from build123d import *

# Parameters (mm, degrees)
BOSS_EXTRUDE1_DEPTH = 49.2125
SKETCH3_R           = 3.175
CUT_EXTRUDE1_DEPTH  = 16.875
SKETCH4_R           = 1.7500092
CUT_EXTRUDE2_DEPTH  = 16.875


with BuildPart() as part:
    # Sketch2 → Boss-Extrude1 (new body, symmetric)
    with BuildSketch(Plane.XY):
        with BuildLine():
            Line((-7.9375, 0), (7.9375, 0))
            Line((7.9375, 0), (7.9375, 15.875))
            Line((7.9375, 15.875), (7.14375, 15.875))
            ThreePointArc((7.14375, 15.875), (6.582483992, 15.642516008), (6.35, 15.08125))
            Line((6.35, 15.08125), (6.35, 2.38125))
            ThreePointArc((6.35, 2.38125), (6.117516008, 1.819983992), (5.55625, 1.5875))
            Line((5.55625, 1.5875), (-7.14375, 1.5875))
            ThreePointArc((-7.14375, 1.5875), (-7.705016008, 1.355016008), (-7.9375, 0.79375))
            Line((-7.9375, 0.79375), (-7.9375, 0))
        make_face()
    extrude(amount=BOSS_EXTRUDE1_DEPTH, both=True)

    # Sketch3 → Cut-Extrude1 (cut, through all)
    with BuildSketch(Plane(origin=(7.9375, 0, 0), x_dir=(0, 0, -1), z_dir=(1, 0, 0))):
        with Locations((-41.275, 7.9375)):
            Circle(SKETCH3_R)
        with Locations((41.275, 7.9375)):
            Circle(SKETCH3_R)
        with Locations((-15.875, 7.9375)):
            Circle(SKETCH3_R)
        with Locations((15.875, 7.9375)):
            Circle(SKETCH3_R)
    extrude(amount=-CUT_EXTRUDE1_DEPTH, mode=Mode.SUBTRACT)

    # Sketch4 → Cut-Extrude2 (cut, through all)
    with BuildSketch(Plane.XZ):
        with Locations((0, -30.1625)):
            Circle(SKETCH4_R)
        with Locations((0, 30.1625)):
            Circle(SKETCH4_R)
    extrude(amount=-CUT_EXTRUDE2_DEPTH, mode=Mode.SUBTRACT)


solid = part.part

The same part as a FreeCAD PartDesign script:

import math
import FreeCAD as App
import Part
import Sketcher

V = App.Vector
Q = App.Units.Quantity

doc = App.newDocument("Part")
body = doc.addObject("PartDesign::Body", "Body")

sketch1 = doc.addObject("Sketcher::SketchObject", "Sketch")
body.addObject(sketch1)
sketch1.AttachmentSupport = (doc.XY_Plane, [""])
sketch1.MapMode = "FlatFace"
sketch1.addGeometry([
    Part.LineSegment(V(-7.9, 0, 0), V(7.9, 0, 0)),
    Part.LineSegment(V(7.9, 0, 0), V(7.9, 15.9, 0)),
    Part.LineSegment(V(7.9, 15.9, 0), V(7.1, 15.9, 0)),
    Part.ArcOfCircle(Part.Circle(V(7.1, 15.1, 0), V(0, 0, 1), 0.8), math.radians(90), math.radians(180)),
    Part.LineSegment(V(6.3, 15.1, 0), V(6.3, 2.4, 0)),
    Part.ArcOfCircle(Part.Circle(V(5.6, 2.4, 0), V(0, 0, 1), 0.8), math.radians(-90), math.radians(0)),
    Part.LineSegment(V(5.6, 1.6, 0), V(-7.1, 1.6, 0)),
    Part.ArcOfCircle(Part.Circle(V(-7.1, 0.8, 0), V(0, 0, 1), 0.8), math.radians(90), math.radians(180)),
    Part.LineSegment(V(-7.9, 0.8, 0), V(-7.9, 0, 0)),
], False)
sketch1.addConstraint([
    Sketcher.Constraint("Coincident", 0, 2, 1, 1),
    Sketcher.Constraint("Coincident", 1, 2, 2, 1),
    Sketcher.Constraint("Tangent", 2, 2, 3, 1),
    Sketcher.Constraint("Tangent", 3, 2, 4, 1),
    Sketcher.Constraint("Tangent", 4, 2, 5, 2),
    Sketcher.Constraint("Tangent", 5, 1, 6, 1),
    Sketcher.Constraint("Tangent", 6, 2, 7, 1),
    Sketcher.Constraint("Tangent", 7, 2, 8, 1),
    Sketcher.Constraint("Coincident", 8, 2, 0, 1),
    Sketcher.Constraint("Horizontal", 0),
    Sketcher.Constraint("Vertical", 1),
    Sketcher.Constraint("Horizontal", 2),
    Sketcher.Constraint("Vertical", 4),
    Sketcher.Constraint("Horizontal", 6),
    Sketcher.Constraint("Vertical", 8),
    Sketcher.Constraint("Equal", 3, 5),
    Sketcher.Constraint("Equal", 5, 7),
    Sketcher.Constraint("Symmetric", 0, 2, 8, 2, -1, 1),
    Sketcher.Constraint("Equal", 0, 1),
    Sketcher.Constraint("Equal", 6, 4),
    Sketcher.Constraint("DistanceX", 6, 2, 6, 1, Q("0.5 in")),
    Sketcher.Constraint("Radius", 3, Q("0.03125 in")),
    Sketcher.Constraint("DistanceX", 0, 1, 0, 2, Q("0.625 in")),
])
pad1 = doc.addObject("PartDesign::Pad", "Pad")
body.addObject(pad1)
pad1.Profile = sketch1
pad1.Length = Q("3.875 in")
pad1.Midplane = True

sketch2 = doc.addObject("Sketcher::SketchObject", "Sketch001")
body.addObject(sketch2)
sketch2.AttachmentSupport = (doc.YZ_Plane, [""])
sketch2.MapMode = "FlatFace"
sketch2.AttachmentOffset = App.Placement(V(0, 0, 0.3125 * 25.4), App.Rotation())
sketch2.addGeometry([
    Part.Circle(V(7.9, 41.3, 0), V(0, 0, 1), 3.2),
    Part.Circle(V(7.9, -41.3, 0), V(0, 0, 1), 3.2),
    Part.Circle(V(7.9, 15.9, 0), V(0, 0, 1), 3.2),
    Part.Circle(V(7.9, -15.9, 0), V(0, 0, 1), 3.2),
], False)
sketch2.addConstraint([
    Sketcher.Constraint("Equal", 0, 1),
    Sketcher.Constraint("Equal", 1, 2),
    Sketcher.Constraint("Equal", 2, 3),
    Sketcher.Constraint("Symmetric", 0, 3, 1, 3, -1),
    Sketcher.Constraint("Symmetric", 2, 3, 3, 3, -1),
    Sketcher.Constraint("Vertical", 1, 3, 2, 3),
    Sketcher.Constraint("Diameter", 0, Q("0.25 in")),
    Sketcher.Constraint("DistanceY", 2, 3, 0, 3, Q("1 in")),
    Sketcher.Constraint("DistanceY", 1, 3, 0, 3, Q("3.25 in")),
    Sketcher.Constraint("DistanceX", -1, 1, 0, 3, Q("0.3125 in")),
])
pocket1 = doc.addObject("PartDesign::Pocket", "Pocket")
body.addObject(pocket1)
pocket1.Profile = sketch2
pocket1.Type = "ThroughAll"

sketch3 = doc.addObject("Sketcher::SketchObject", "Sketch002")
body.addObject(sketch3)
sketch3.AttachmentSupport = (doc.XZ_Plane, [""])
sketch3.MapMode = "FlatFace"
sketch3.addGeometry([
    Part.Circle(V(0, -30.2, 0), V(0, 0, 1), 1.8),
    Part.Circle(V(0, 30.2, 0), V(0, 0, 1), 1.8),
], False)
sketch3.addConstraint([
    Sketcher.Constraint("Equal", 0, 1),
    Sketcher.Constraint("Symmetric", 0, 3, 1, 3, -1, 1),
    Sketcher.Constraint("PointOnObject", 0, 3, -2),
    Sketcher.Constraint("Diameter", 0, 3.500018),
    Sketcher.Constraint("DistanceY", 0, 3, -1, 1, Q("1.1875 in")),
])
pocket2 = doc.addObject("PartDesign::Pocket", "Pocket001")
body.addObject(pocket2)
pocket2.Profile = sketch3
pocket2.Type = "ThroughAll"

doc.recompute()
